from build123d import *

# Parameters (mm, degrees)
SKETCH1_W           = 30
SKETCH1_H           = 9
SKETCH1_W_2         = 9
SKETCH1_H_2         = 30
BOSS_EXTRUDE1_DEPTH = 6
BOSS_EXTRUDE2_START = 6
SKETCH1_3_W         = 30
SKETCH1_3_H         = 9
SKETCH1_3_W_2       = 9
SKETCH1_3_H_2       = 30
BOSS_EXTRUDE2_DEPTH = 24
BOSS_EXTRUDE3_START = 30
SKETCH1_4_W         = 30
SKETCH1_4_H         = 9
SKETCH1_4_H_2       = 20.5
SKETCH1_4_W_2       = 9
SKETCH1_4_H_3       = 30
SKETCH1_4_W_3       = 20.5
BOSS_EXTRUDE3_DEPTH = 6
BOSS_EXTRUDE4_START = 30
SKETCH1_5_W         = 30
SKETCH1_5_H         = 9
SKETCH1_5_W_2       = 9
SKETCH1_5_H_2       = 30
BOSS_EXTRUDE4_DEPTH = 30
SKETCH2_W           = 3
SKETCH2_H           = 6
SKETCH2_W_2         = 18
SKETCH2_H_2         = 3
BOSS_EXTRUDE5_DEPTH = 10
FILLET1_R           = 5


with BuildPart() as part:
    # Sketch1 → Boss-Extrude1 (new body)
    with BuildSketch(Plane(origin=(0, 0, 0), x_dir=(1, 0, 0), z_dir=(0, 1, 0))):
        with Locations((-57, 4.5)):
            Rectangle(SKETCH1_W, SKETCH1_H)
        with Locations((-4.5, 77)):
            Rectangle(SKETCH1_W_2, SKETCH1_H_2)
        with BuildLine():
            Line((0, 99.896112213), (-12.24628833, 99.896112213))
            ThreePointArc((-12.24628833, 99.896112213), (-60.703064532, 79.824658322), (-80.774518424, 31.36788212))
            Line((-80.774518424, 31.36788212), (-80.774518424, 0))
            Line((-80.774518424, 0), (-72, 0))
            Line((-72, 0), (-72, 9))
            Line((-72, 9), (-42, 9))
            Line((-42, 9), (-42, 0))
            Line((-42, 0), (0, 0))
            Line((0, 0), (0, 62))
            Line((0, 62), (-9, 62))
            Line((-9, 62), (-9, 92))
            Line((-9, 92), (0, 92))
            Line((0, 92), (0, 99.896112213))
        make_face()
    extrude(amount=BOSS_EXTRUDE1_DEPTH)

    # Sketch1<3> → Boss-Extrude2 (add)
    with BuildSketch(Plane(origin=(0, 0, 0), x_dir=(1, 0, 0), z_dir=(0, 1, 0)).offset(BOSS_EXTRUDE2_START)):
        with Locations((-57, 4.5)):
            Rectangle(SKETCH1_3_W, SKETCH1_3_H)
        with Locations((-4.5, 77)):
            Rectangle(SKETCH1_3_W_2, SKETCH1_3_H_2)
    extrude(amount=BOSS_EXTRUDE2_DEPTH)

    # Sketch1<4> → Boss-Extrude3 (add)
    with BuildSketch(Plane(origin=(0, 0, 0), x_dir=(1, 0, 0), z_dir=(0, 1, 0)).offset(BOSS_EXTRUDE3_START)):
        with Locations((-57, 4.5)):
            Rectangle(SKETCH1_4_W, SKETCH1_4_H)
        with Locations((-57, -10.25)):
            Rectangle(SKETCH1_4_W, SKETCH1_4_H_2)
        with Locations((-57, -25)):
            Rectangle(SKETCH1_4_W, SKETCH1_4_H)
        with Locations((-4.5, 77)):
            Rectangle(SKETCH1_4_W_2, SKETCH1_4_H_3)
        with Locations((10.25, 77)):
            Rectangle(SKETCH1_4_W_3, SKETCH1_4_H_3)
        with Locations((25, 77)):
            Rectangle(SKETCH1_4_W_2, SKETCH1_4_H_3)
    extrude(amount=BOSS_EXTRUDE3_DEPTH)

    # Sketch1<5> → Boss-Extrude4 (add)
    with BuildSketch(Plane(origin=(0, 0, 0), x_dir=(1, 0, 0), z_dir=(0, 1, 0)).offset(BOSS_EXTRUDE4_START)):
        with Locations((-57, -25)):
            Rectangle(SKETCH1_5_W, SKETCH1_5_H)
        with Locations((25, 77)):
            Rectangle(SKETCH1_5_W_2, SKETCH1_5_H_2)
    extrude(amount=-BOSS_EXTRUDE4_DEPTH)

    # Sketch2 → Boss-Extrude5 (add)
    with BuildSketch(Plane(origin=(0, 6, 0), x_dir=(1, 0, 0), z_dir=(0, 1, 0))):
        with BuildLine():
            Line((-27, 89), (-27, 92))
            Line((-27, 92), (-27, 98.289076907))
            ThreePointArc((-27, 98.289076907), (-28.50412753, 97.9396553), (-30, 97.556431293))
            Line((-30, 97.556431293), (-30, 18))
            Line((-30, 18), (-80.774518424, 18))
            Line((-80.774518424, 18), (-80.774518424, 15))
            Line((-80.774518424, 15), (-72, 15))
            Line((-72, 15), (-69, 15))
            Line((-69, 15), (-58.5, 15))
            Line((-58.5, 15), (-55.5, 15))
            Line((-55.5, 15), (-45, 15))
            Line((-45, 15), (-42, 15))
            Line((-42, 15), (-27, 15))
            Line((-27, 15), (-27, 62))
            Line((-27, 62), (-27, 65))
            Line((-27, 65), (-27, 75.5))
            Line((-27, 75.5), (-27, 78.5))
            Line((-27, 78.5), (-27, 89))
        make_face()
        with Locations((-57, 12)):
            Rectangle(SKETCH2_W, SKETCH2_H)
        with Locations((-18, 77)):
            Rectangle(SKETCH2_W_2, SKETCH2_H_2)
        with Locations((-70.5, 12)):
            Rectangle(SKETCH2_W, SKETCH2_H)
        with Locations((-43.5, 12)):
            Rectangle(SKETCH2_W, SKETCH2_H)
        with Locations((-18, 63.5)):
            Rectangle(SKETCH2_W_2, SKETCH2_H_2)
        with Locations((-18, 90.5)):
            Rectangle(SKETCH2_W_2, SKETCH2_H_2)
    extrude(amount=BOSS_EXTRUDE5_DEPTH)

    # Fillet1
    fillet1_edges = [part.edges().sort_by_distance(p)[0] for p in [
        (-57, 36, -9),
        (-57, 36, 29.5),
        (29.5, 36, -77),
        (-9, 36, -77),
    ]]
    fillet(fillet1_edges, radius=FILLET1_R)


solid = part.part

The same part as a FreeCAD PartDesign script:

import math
import FreeCAD as App
import Part
import Sketcher

V = App.Vector


def edges_at(feature, points):
    """Names of the edges that pass closest to the given points."""
    edges = feature.Shape.Edges
    near = lambda p: min(range(len(edges)), key=lambda i: edges[i].distToShape(Part.Vertex(*p))[0])
    return sorted({f"Edge{near(p) + 1}" for p in points})


def add_polygon(sketch, points):
    """Adds a closed chain of lines whose ends are joined by coincident constraints."""
    first, n = sketch.GeometryCount, len(points)
    for a, b in zip(points, points[1:] + points[:1]):
        sketch.addGeometry(Part.LineSegment(App.Vector(*a, 0), App.Vector(*b, 0)), False)
    for i in range(n):
        sketch.addConstraint(Sketcher.Constraint("Coincident", first + i, 2, first + (i + 1) % n, 1))

doc = App.newDocument("Part")
params = doc.addObject("Spreadsheet::Sheet", "Params")
for row, (alias, value) in enumerate([
    ("pad1_length", "6 mm"),
    ("sketch2_width", "30 mm"),
    ("sketch2_width2", "9 mm"),
    ("pad2_length", "24 mm"),
    ("sketch3_width", "30 mm"),
    ("sketch3_width2", "38.5 mm"),
    ("pad3_length", "6 mm"),
    ("sketch4_width", "30 mm"),
    ("sketch4_width2", "9 mm"),
    ("pad4_length", "30 mm"),
    ("sketch5_width", "3 mm"),
    ("sketch5_width2", "15 mm"),
    ("sketch5_width3", "18 mm"),
    ("sketch5_height", "6 mm"),
    ("sketch5_height2", "47 mm"),
    ("pad5_length", "10 mm"),
    ("fillet_radius", "5 mm"),
], start=1):
    params.set(f"A{row}", alias)
    params.set(f"B{row}", "=" + value)
    params.setAlias(f"B{row}", alias)

body = doc.addObject("PartDesign::Body", "Body")

# Sketch on XZ plane
sketch1 = doc.addObject("Sketcher::SketchObject", "Sketch")
body.addObject(sketch1)
sketch1.AttachmentSupport = (doc.XZ_Plane, [""])
sketch1.MapMode = "FlatFace"
sketch1.addGeometry(Part.LineSegment(V(0, 0, 0), V(0, -100, 0)), False)
sketch1.addGeometry(Part.LineSegment(V(0, -100, 0), V(-12, -100, 0)), False)
sketch1.addGeometry(Part.ArcOfCircle(Part.Circle(V(-12, -31, 0), V(0, 0, 1), 69), math.radians(180), math.radians(270)), False)
sketch1.addGeometry(Part.LineSegment(V(-81, -31, 0), V(-81, 0, 0)), False)
sketch1.addGeometry(Part.LineSegment(V(-81, 0, 0), V(0, 0, 0)), False)
sketch1.addConstraint(Sketcher.Constraint("Coincident", 0, 2, 1, 1))
sketch1.addConstraint(Sketcher.Constraint("Tangent", 1, 2, 2, 2))
sketch1.addConstraint(Sketcher.Constraint("Tangent", 2, 1, 3, 1))
sketch1.addConstraint(Sketcher.Constraint("Coincident", 3, 2, 4, 1))
sketch1.addConstraint(Sketcher.Constraint("Coincident", 4, 2, 0, 1))
sketch1.addConstraint(Sketcher.Constraint("Vertical", 0))
sketch1.addConstraint(Sketcher.Constraint("Horizontal", 1))
sketch1.addConstraint(Sketcher.Constraint("Vertical", 3))
sketch1.addConstraint(Sketcher.Constraint("Horizontal", 4))
sketch1.addConstraint(Sketcher.Constraint("Coincident", 4, 2, -1, 1))
sketch1.addConstraint(Sketcher.Constraint("Radius", 2, 68.52823))
sketch1.addConstraint(Sketcher.Constraint("DistanceX", 1, 2, 1, 1, 12.246288))
sketch1.addConstraint(Sketcher.Constraint("DistanceY", 0, 2, 0, 1, 99.896112))
pad1 = doc.addObject("PartDesign::Pad", "Pad")
body.addObject(pad1)
pad1.Profile = sketch1
pad1.setExpression("Length", "Params.pad1_length")
pad1.Reversed = True

# Sketch on XZ plane
sketch2 = doc.addObject("Sketcher::SketchObject", "Sketch001")
body.addObject(sketch2)
sketch2.AttachmentSupport = (doc.XZ_Plane, [""])
sketch2.MapMode = "FlatFace"
sketch2.AttachmentOffset = App.Placement(V(0, 0, -6), App.Rotation())
add_polygon(sketch2, [(-72, -9), (-72, 0), (-42, 0), (-42, -9)])  # lines 0-3
add_polygon(sketch2, [(-9, -92), (-9, -62), (0, -62), (0, -92)])  # lines 4-7
sketch2.addConstraint(Sketcher.Constraint("Vertical", 0))
sketch2.addConstraint(Sketcher.Constraint("Horizontal", 1))
sketch2.addConstraint(Sketcher.Constraint("Vertical", 2))
sketch2.addConstraint(Sketcher.Constraint("Horizontal", 3))
sketch2.addConstraint(Sketcher.Constraint("Vertical", 4))
sketch2.addConstraint(Sketcher.Constraint("Horizontal", 5))
sketch2.addConstraint(Sketcher.Constraint("Vertical", 6))
sketch2.addConstraint(Sketcher.Constraint("Horizontal", 7))
sketch2.addConstraint(Sketcher.Constraint("PointOnObject", 0, 2, -1))
sketch2.addConstraint(Sketcher.Constraint("PointOnObject", 5, 2, -2))
sketch2.addConstraint(Sketcher.Constraint("Equal", 7, 0))
sketch2.addConstraint(Sketcher.Constraint("Equal", 3, 4))
sketch2.addConstraint(Sketcher.Constraint("DistanceX", 1, 1, 1, 2, 30.0))
sketch2.addConstraint(Sketcher.Constraint("DistanceX", 5, 1, 5, 2, 9.0))
sketch2.addConstraint(Sketcher.Constraint("DistanceX", 0, 2, -1, 1, 72.0))
sketch2.addConstraint(Sketcher.Constraint("DistanceY", 4, 2, -1, 1, 62.0))
sketch2.setExpression("Constraints[20]", "Params.sketch2_width")
sketch2.setExpression("Constraints[21]", "Params.sketch2_width2")
pad2 = doc.addObject("PartDesign::Pad", "Pad001")
body.addObject(pad2)
pad2.Profile = sketch2
pad2.setExpression("Length", "Params.pad2_length")
pad2.Reversed = True

# Sketch on XZ plane
sketch3 = doc.addObject("Sketcher::SketchObject", "Sketch002")
body.addObject(sketch3)
sketch3.AttachmentSupport = (doc.XZ_Plane, [""])
sketch3.MapMode = "FlatFace"
sketch3.AttachmentOffset = App.Placement(V(0, 0, -30), App.Rotation())
add_polygon(sketch3, [(-72, -9), (-72, 30), (-42, 30), (-42, -9)])  # lines 0-3
add_polygon(sketch3, [(-9, -92), (-9, -62), (30, -62), (30, -92)])  # lines 4-7
sketch3.addConstraint(Sketcher.Constraint("Vertical", 0))
sketch3.addConstraint(Sketcher.Constraint("Horizontal", 1))
sketch3.addConstraint(Sketcher.Constraint("Vertical", 2))
sketch3.addConstraint(Sketcher.Constraint("Horizontal", 3))
sketch3.addConstraint(Sketcher.Constraint("Vertical", 4))
sketch3.addConstraint(Sketcher.Constraint("Horizontal", 5))
sketch3.addConstraint(Sketcher.Constraint("Vertical", 6))
sketch3.addConstraint(Sketcher.Constraint("Horizontal", 7))
sketch3.addConstraint(Sketcher.Constraint("Equal", 7, 0))
sketch3.addConstraint(Sketcher.Constraint("Equal", 3, 4))
sketch3.addConstraint(Sketcher.Constraint("DistanceX", 1, 1, 1, 2, 30.0))
sketch3.addConstraint(Sketcher.Constraint("DistanceX", 5, 1, 5, 2, 38.5))
sketch3.addConstraint(Sketcher.Constraint("DistanceX", 0, 2, -1, 1, 72.0))
sketch3.addConstraint(Sketcher.Constraint("DistanceY", 2, 2, -1, 1, 9.0))
sketch3.addConstraint(Sketcher.Constraint("DistanceX", 4, 2, -1, 1, 9.0))
sketch3.addConstraint(Sketcher.Constraint("DistanceY", 4, 2, -1, 1, 62.0))
sketch3.setExpression("Constraints[18]", "Params.sketch3_width")
sketch3.setExpression("Constraints[19]", "Params.sketch3_width2")
pad3 = doc.addObject("PartDesign::Pad", "Pad002")
body.addObject(pad3)
pad3.Profile = sketch3
pad3.setExpression("Length", "Params.pad3_length")
pad3.Reversed = True

# Sketch on XZ plane
sketch4 = doc.addObject("Sketcher::SketchObject", "Sketch003")
body.addObject(sketch4)
sketch4.AttachmentSupport = (doc.XZ_Plane, [""])
sketch4.MapMode = "FlatFace"
sketch4.AttachmentOffset = App.Placement(V(0, 0, -30), App.Rotation())
add_polygon(sketch4, [(-72, 20), (-72, 30), (-42, 30), (-42, 20)])  # lines 0-3
add_polygon(sketch4, [(20, -92), (20, -62), (30, -62), (30, -92)])  # lines 4-7
sketch4.addConstraint(Sketcher.Constraint("Vertical", 0))
sketch4.addConstraint(Sketcher.Constraint("Horizontal", 1))
sketch4.addConstraint(Sketcher.Constraint("Vertical", 2))
sketch4.addConstraint(Sketcher.Constraint("Horizontal", 3))
sketch4.addConstraint(Sketcher.Constraint("Vertical", 4))
sketch4.addConstraint(Sketcher.Constraint("Horizontal", 5))
sketch4.addConstraint(Sketcher.Constraint("Vertical", 6))
sketch4.addConstraint(Sketcher.Constraint("Horizontal", 7))
sketch4.addConstraint(Sketcher.Constraint("Equal", 7, 0))
sketch4.addConstraint(Sketcher.Constraint("Equal", 3, 4))
sketch4.addConstraint(Sketcher.Constraint("DistanceX", 1, 1, 1, 2, 30.0))
sketch4.addConstraint(Sketcher.Constraint("DistanceX", 5, 1, 5, 2, 9.0))
sketch4.addConstraint(Sketcher.Constraint("DistanceX", 0, 2, -1, 1, 72.0))
sketch4.addConstraint(Sketcher.Constraint("DistanceY", 4, 2, -1, 1, 62.0))
sketch4.addConstraint(Sketcher.Constraint("DistanceY", -1, 1, 0, 2, 29.5))
sketch4.addConstraint(Sketcher.Constraint("DistanceX", -1, 1, 4, 2, 20.5))
sketch4.setExpression("Constraints[18]", "Params.sketch4_width")
sketch4.setExpression("Constraints[19]", "Params.sketch4_width2")
pad4 = doc.addObject("PartDesign::Pad", "Pad003")
body.addObject(pad4)
pad4.Profile = sketch4
pad4.setExpression("Length", "Params.pad4_length")

# Sketch on XZ plane
sketch5 = doc.addObject("Sketcher::SketchObject", "Sketch004")
body.addObject(sketch5)
sketch5.AttachmentSupport = (doc.XZ_Plane, [""])
sketch5.MapMode = "FlatFace"
sketch5.AttachmentOffset = App.Placement(V(0, 0, -6), App.Rotation())
sketch5.addGeometry(Part.ArcOfCircle(Part.Circle(V(-12.2, -31.4, 0), V(0, 0, 1), 68.5), math.radians(-105.01), math.radians(-102.43)), False)
sketch5.addGeometry(Part.LineSegment(V(-30, -97.6, 0), V(-30, -18, 0)), False)
sketch5.addGeometry(Part.LineSegment(V(-30, -18, 0), V(-80.8, -18, 0)), False)
sketch5.addGeometry(Part.LineSegment(V(-80.8, -18, 0), V(-80.8, -15, 0)), False)
sketch5.addGeometry(Part.LineSegment(V(-80.8, -15, 0), V(-72, -15, 0)), False)
sketch5.addGeometry(Part.LineSegment(V(-72, -15, 0), V(-72, -9, 0)), False)
sketch5.addGeometry(Part.LineSegment(V(-72, -9, 0), V(-69, -9, 0)), False)
sketch5.addGeometry(Part.LineSegment(V(-69, -9, 0), V(-69, -15, 0)), False)
sketch5.addGeometry(Part.LineSegment(V(-69, -15, 0), V(-58.5, -15, 0)), False)
sketch5.addGeometry(Part.LineSegment(V(-58.5, -15, 0), V(-58.5, -9, 0)), False)
sketch5.addGeometry(Part.LineSegment(V(-58.5, -9, 0), V(-55.5, -9, 0)), False)
sketch5.addGeometry(Part.LineSegment(V(-55.5, -9, 0), V(-55.5, -15, 0)), False)
sketch5.addGeometry(Part.LineSegment(V(-55.5, -15, 0), V(-45, -15, 0)), False)
sketch5.addGeometry(Part.LineSegment(V(-45, -15, 0), V(-45, -9, 0)), False)
sketch5.addGeometry(Part.LineSegment(V(-45, -9, 0), V(-42, -9, 0)), False)
sketch5.addGeometry(Part.LineSegment(V(-42, -9, 0), V(-42, -15, 0)), False)
sketch5.addGeometry(Part.LineSegment(V(-42, -15, 0), V(-27, -15, 0)), False)
sketch5.addGeometry(Part.LineSegment(V(-27, -15, 0), V(-27, -62, 0)), False)
sketch5.addGeometry(Part.LineSegment(V(-27, -62, 0), V(-9, -62, 0)), False)
sketch5.addGeometry(Part.LineSegment(V(-9, -62, 0), V(-9, -65, 0)), False)
sketch5.addGeometry(Part.LineSegment(V(-9, -65, 0), V(-27, -65, 0)), False)
sketch5.addGeometry(Part.LineSegment(V(-27, -65, 0), V(-27, -75.5, 0)), False)
sketch5.addGeometry(Part.LineSegment(V(-27, -75.5, 0), V(-9, -75.5, 0)), False)
sketch5.addGeometry(Part.LineSegment(V(-9, -75.5, 0), V(-9, -78.5, 0)), False)
sketch5.addGeometry(Part.LineSegment(V(-9, -78.5, 0), V(-27, -78.5, 0)), False)
sketch5.addGeometry(Part.LineSegment(V(-27, -78.5, 0), V(-27, -89, 0)), False)
sketch5.addGeometry(Part.LineSegment(V(-27, -89, 0), V(-9, -89, 0)), False)
sketch5.addGeometry(Part.LineSegment(V(-9, -89, 0), V(-9, -92, 0)), False)
sketch5.addGeometry(Part.LineSegment(V(-9, -92, 0), V(-27, -92, 0)), False)
sketch5.addGeometry(Part.LineSegment(V(-27, -92, 0), V(-27, -98.3, 0)), False)
sketch5.addConstraint(Sketcher.Constraint("Coincident", 0, 1, 1, 1))
sketch5.addConstraint(Sketcher.Constraint("Coincident", 1, 2, 2, 1))
sketch5.addConstraint(Sketcher.Constraint("Coincident", 2, 2, 3, 1))
sketch5.addConstraint(Sketcher.Constraint("Coincident", 3, 2, 4, 1))
sketch5.addConstraint(Sketcher.Constraint("Coincident", 4, 2, 5, 1))
sketch5.addConstraint(Sketcher.Constraint("Coincident", 5, 2, 6, 1))
sketch5.addConstraint(Sketcher.Constraint("Coincident", 6, 2, 7, 1))
sketch5.addConstraint(Sketcher.Constraint("Coincident", 7, 2, 8, 1))
sketch5.addConstraint(Sketcher.Constraint("Coincident", 8, 2, 9, 1))
sketch5.addConstraint(Sketcher.Constraint("Coincident", 9, 2, 10, 1))
sketch5.addConstraint(Sketcher.Constraint("Coincident", 10, 2, 11, 1))
sketch5.addConstraint(Sketcher.Constraint("Coincident", 11, 2, 12, 1))
sketch5.addConstraint(Sketcher.Constraint("Coincident", 12, 2, 13, 1))
sketch5.addConstraint(Sketcher.Constraint("Coincident", 13, 2, 14, 1))
sketch5.addConstraint(Sketcher.Constraint("Coincident", 14, 2, 15, 1))
sketch5.addConstraint(Sketcher.Constraint("Coincident", 15, 2, 16, 1))
sketch5.addConstraint(Sketcher.Constraint("Coincident", 16, 2, 17, 1))
sketch5.addConstraint(Sketcher.Constraint("Coincident", 17, 2, 18, 1))
sketch5.addConstraint(Sketcher.Constraint("Coincident", 18, 2, 19, 1))
sketch5.addConstraint(Sketcher.Constraint("Coincident", 19, 2, 20, 1))
sketch5.addConstraint(Sketcher.Constraint("Coincident", 20, 2, 21, 1))
sketch5.addConstraint(Sketcher.Constraint("Coincident", 21, 2, 22, 1))
sketch5.addConstraint(Sketcher.Constraint("Coincident", 22, 2, 23, 1))
sketch5.addConstraint(Sketcher.Constraint("Coincident", 23, 2, 24, 1))
sketch5.addConstraint(Sketcher.Constraint("Coincident", 24, 2, 25, 1))
sketch5.addConstraint(Sketcher.Constraint("Coincident", 25, 2, 26, 1))
sketch5.addConstraint(Sketcher.Constraint("Coincident", 26, 2, 27, 1))
sketch5.addConstraint(Sketcher.Constraint("Coincident", 27, 2, 28, 1))
sketch5.addConstraint(Sketcher.Constraint("Coincident", 28, 2, 29, 1))
sketch5.addConstraint(Sketcher.Constraint("Coincident", 29, 2, 0, 2))
sketch5.addConstraint(Sketcher.Constraint("Vertical", 1))
sketch5.addConstraint(Sketcher.Constraint("Horizontal", 2))
sketch5.addConstraint(Sketcher.Constraint("Vertical", 3))
sketch5.addConstraint(Sketcher.Constraint("Horizontal", 4))
sketch5.addConstraint(Sketcher.Constraint("Vertical", 5))
sketch5.addConstraint(Sketcher.Constraint("Horizontal", 6))
sketch5.addConstraint(Sketcher.Constraint("Vertical", 7))
sketch5.addConstraint(Sketcher.Constraint("Horizontal", 8))
sketch5.addConstraint(Sketcher.Constraint("Vertical", 9))
sketch5.addConstraint(Sketcher.Constraint("Horizontal", 10))
sketch5.addConstraint(Sketcher.Constraint("Vertical", 11))
sketch5.addConstraint(Sketcher.Constraint("Horizontal", 12))
sketch5.addConstraint(Sketcher.Constraint("Vertical", 13))
sketch5.addConstraint(Sketcher.Constraint("Horizontal", 14))
sketch5.addConstraint(Sketcher.Constraint("Vertical", 15))
sketch5.addConstraint(Sketcher.Constraint("Horizontal", 16))
sketch5.addConstraint(Sketcher.Constraint("Vertical", 17))
sketch5.addConstraint(Sketcher.Constraint("Horizontal", 18))
sketch5.addConstraint(Sketcher.Constraint("Vertical", 19))
sketch5.addConstraint(Sketcher.Constraint("Horizontal", 20))
sketch5.addConstraint(Sketcher.Constraint("Vertical", 21))
sketch5.addConstraint(Sketcher.Constraint("Horizontal", 22))
sketch5.addConstraint(Sketcher.Constraint("Vertical", 23))
sketch5.addConstraint(Sketcher.Constraint("Horizontal", 24))
sketch5.addConstraint(Sketcher.Constraint("Vertical", 25))
sketch5.addConstraint(Sketcher.Constraint("Horizontal", 26))
sketch5.addConstraint(Sketcher.Constraint("Vertical", 27))
sketch5.addConstraint(Sketcher.Constraint("Horizontal", 28))
sketch5.addConstraint(Sketcher.Constraint("Vertical", 29))
sketch5.addConstraint(Sketcher.Constraint("Horizontal", 4, 2, 7, 2))
sketch5.addConstraint(Sketcher.Constraint("Horizontal", 6, 2, 9, 2))
sketch5.addConstraint(Sketcher.Constraint("Horizontal", 8, 2, 11, 2))
sketch5.addConstraint(Sketcher.Constraint("Horizontal", 10, 2, 13, 2))
sketch5.addConstraint(Sketcher.Constraint("Horizontal", 12, 2, 15, 2))
sketch5.addConstraint(Sketcher.Constraint("Vertical", 17, 2, 20, 2))
sketch5.addConstraint(Sketcher.Constraint("Vertical", 19, 2, 22, 2))
sketch5.addConstraint(Sketcher.Constraint("Vertical", 21, 2, 24, 2))
sketch5.addConstraint(Sketcher.Constraint("Vertical", 23, 2, 26, 2))
sketch5.addConstraint(Sketcher.Constraint("Vertical", 25, 2, 28, 2))
sketch5.addConstraint(Sketcher.Constraint("Equal", 6, 10))
sketch5.addConstraint(Sketcher.Constraint("Equal", 8, 12))
sketch5.addConstraint(Sketcher.Constraint("Equal", 10, 14))
sketch5.addConstraint(Sketcher.Constraint("Equal", 14, 3))
sketch5.addConstraint(Sketcher.Constraint("Equal", 3, 19))
sketch5.addConstraint(Sketcher.Constraint("Equal", 12, 21))
sketch5.addConstraint(Sketcher.Constraint("Equal", 19, 23))
sketch5.addConstraint(Sketcher.Constraint("Equal", 21, 25))
sketch5.addConstraint(Sketcher.Constraint("Equal", 23, 27))
sketch5.addConstraint(Sketcher.Constraint("DistanceX", 6, 1, 6, 2, 3.0))
sketch5.addConstraint(Sketcher.Constraint("DistanceX", 16, 1, 16, 2, 15.0))
sketch5.addConstraint(Sketcher.Constraint("DistanceX", 18, 1, 18, 2, 18.0))
sketch5.addConstraint(Sketcher.Constraint("DistanceY", 5, 1, 5, 2, 6.0))
sketch5.addConstraint(Sketcher.Constraint("DistanceY", 17, 2, 17, 1, 47.0))
sketch5.addConstraint(Sketcher.Constraint("DistanceX", 8, 1, 8, 2, 10.5))
sketch5.addConstraint(Sketcher.Constraint("DistanceX", 0, 1, -1, 1, 30.0))
sketch5.addConstraint(Sketcher.Constraint("DistanceY", 1, 2, -1, 1, 18.0))
sketch5.addConstraint(Sketcher.Constraint("DistanceX", 4, 2, -1, 1, 72.0))
sketch5.addConstraint(Sketcher.Constraint("Radius", 0, 68.528228))
sketch5.addConstraint(Sketcher.Constraint("DistanceX", 2, 2, 2, 1, 50.774518))
sketch5.addConstraint(Sketcher.Constraint("DistanceY", 1, 1, 1, 2, 79.556431))
sketch5.addConstraint(Sketcher.Constraint("DistanceY", 29, 2, 29, 1, 6.289077))
sketch5.setExpression("Constraints[78]", "Params.sketch5_width")
sketch5.setExpression("Constraints[79]", "Params.sketch5_width2")
sketch5.setExpression("Constraints[80]", "Params.sketch5_width3")
sketch5.setExpression("Constraints[81]", "Params.sketch5_height")
sketch5.setExpression("Constraints[82]", "Params.sketch5_height2")
pad5 = doc.addObject("PartDesign::Pad", "Pad004")
body.addObject(pad5)
pad5.Profile = sketch5
pad5.setExpression("Length", "Params.pad5_length")
pad5.Reversed = True
doc.recompute()

fillet = doc.addObject("PartDesign::Fillet", "Fillet")
body.addObject(fillet)
fillet.Base = (pad5, edges_at(pad5, [
    (-57, 36, -9),
    (-57, 36, 29.5),
    (29.5, 36, -77),
    (-9, 36, -77),
]))
fillet.setExpression("Radius", "Params.fillet_radius")

doc.recompute()
